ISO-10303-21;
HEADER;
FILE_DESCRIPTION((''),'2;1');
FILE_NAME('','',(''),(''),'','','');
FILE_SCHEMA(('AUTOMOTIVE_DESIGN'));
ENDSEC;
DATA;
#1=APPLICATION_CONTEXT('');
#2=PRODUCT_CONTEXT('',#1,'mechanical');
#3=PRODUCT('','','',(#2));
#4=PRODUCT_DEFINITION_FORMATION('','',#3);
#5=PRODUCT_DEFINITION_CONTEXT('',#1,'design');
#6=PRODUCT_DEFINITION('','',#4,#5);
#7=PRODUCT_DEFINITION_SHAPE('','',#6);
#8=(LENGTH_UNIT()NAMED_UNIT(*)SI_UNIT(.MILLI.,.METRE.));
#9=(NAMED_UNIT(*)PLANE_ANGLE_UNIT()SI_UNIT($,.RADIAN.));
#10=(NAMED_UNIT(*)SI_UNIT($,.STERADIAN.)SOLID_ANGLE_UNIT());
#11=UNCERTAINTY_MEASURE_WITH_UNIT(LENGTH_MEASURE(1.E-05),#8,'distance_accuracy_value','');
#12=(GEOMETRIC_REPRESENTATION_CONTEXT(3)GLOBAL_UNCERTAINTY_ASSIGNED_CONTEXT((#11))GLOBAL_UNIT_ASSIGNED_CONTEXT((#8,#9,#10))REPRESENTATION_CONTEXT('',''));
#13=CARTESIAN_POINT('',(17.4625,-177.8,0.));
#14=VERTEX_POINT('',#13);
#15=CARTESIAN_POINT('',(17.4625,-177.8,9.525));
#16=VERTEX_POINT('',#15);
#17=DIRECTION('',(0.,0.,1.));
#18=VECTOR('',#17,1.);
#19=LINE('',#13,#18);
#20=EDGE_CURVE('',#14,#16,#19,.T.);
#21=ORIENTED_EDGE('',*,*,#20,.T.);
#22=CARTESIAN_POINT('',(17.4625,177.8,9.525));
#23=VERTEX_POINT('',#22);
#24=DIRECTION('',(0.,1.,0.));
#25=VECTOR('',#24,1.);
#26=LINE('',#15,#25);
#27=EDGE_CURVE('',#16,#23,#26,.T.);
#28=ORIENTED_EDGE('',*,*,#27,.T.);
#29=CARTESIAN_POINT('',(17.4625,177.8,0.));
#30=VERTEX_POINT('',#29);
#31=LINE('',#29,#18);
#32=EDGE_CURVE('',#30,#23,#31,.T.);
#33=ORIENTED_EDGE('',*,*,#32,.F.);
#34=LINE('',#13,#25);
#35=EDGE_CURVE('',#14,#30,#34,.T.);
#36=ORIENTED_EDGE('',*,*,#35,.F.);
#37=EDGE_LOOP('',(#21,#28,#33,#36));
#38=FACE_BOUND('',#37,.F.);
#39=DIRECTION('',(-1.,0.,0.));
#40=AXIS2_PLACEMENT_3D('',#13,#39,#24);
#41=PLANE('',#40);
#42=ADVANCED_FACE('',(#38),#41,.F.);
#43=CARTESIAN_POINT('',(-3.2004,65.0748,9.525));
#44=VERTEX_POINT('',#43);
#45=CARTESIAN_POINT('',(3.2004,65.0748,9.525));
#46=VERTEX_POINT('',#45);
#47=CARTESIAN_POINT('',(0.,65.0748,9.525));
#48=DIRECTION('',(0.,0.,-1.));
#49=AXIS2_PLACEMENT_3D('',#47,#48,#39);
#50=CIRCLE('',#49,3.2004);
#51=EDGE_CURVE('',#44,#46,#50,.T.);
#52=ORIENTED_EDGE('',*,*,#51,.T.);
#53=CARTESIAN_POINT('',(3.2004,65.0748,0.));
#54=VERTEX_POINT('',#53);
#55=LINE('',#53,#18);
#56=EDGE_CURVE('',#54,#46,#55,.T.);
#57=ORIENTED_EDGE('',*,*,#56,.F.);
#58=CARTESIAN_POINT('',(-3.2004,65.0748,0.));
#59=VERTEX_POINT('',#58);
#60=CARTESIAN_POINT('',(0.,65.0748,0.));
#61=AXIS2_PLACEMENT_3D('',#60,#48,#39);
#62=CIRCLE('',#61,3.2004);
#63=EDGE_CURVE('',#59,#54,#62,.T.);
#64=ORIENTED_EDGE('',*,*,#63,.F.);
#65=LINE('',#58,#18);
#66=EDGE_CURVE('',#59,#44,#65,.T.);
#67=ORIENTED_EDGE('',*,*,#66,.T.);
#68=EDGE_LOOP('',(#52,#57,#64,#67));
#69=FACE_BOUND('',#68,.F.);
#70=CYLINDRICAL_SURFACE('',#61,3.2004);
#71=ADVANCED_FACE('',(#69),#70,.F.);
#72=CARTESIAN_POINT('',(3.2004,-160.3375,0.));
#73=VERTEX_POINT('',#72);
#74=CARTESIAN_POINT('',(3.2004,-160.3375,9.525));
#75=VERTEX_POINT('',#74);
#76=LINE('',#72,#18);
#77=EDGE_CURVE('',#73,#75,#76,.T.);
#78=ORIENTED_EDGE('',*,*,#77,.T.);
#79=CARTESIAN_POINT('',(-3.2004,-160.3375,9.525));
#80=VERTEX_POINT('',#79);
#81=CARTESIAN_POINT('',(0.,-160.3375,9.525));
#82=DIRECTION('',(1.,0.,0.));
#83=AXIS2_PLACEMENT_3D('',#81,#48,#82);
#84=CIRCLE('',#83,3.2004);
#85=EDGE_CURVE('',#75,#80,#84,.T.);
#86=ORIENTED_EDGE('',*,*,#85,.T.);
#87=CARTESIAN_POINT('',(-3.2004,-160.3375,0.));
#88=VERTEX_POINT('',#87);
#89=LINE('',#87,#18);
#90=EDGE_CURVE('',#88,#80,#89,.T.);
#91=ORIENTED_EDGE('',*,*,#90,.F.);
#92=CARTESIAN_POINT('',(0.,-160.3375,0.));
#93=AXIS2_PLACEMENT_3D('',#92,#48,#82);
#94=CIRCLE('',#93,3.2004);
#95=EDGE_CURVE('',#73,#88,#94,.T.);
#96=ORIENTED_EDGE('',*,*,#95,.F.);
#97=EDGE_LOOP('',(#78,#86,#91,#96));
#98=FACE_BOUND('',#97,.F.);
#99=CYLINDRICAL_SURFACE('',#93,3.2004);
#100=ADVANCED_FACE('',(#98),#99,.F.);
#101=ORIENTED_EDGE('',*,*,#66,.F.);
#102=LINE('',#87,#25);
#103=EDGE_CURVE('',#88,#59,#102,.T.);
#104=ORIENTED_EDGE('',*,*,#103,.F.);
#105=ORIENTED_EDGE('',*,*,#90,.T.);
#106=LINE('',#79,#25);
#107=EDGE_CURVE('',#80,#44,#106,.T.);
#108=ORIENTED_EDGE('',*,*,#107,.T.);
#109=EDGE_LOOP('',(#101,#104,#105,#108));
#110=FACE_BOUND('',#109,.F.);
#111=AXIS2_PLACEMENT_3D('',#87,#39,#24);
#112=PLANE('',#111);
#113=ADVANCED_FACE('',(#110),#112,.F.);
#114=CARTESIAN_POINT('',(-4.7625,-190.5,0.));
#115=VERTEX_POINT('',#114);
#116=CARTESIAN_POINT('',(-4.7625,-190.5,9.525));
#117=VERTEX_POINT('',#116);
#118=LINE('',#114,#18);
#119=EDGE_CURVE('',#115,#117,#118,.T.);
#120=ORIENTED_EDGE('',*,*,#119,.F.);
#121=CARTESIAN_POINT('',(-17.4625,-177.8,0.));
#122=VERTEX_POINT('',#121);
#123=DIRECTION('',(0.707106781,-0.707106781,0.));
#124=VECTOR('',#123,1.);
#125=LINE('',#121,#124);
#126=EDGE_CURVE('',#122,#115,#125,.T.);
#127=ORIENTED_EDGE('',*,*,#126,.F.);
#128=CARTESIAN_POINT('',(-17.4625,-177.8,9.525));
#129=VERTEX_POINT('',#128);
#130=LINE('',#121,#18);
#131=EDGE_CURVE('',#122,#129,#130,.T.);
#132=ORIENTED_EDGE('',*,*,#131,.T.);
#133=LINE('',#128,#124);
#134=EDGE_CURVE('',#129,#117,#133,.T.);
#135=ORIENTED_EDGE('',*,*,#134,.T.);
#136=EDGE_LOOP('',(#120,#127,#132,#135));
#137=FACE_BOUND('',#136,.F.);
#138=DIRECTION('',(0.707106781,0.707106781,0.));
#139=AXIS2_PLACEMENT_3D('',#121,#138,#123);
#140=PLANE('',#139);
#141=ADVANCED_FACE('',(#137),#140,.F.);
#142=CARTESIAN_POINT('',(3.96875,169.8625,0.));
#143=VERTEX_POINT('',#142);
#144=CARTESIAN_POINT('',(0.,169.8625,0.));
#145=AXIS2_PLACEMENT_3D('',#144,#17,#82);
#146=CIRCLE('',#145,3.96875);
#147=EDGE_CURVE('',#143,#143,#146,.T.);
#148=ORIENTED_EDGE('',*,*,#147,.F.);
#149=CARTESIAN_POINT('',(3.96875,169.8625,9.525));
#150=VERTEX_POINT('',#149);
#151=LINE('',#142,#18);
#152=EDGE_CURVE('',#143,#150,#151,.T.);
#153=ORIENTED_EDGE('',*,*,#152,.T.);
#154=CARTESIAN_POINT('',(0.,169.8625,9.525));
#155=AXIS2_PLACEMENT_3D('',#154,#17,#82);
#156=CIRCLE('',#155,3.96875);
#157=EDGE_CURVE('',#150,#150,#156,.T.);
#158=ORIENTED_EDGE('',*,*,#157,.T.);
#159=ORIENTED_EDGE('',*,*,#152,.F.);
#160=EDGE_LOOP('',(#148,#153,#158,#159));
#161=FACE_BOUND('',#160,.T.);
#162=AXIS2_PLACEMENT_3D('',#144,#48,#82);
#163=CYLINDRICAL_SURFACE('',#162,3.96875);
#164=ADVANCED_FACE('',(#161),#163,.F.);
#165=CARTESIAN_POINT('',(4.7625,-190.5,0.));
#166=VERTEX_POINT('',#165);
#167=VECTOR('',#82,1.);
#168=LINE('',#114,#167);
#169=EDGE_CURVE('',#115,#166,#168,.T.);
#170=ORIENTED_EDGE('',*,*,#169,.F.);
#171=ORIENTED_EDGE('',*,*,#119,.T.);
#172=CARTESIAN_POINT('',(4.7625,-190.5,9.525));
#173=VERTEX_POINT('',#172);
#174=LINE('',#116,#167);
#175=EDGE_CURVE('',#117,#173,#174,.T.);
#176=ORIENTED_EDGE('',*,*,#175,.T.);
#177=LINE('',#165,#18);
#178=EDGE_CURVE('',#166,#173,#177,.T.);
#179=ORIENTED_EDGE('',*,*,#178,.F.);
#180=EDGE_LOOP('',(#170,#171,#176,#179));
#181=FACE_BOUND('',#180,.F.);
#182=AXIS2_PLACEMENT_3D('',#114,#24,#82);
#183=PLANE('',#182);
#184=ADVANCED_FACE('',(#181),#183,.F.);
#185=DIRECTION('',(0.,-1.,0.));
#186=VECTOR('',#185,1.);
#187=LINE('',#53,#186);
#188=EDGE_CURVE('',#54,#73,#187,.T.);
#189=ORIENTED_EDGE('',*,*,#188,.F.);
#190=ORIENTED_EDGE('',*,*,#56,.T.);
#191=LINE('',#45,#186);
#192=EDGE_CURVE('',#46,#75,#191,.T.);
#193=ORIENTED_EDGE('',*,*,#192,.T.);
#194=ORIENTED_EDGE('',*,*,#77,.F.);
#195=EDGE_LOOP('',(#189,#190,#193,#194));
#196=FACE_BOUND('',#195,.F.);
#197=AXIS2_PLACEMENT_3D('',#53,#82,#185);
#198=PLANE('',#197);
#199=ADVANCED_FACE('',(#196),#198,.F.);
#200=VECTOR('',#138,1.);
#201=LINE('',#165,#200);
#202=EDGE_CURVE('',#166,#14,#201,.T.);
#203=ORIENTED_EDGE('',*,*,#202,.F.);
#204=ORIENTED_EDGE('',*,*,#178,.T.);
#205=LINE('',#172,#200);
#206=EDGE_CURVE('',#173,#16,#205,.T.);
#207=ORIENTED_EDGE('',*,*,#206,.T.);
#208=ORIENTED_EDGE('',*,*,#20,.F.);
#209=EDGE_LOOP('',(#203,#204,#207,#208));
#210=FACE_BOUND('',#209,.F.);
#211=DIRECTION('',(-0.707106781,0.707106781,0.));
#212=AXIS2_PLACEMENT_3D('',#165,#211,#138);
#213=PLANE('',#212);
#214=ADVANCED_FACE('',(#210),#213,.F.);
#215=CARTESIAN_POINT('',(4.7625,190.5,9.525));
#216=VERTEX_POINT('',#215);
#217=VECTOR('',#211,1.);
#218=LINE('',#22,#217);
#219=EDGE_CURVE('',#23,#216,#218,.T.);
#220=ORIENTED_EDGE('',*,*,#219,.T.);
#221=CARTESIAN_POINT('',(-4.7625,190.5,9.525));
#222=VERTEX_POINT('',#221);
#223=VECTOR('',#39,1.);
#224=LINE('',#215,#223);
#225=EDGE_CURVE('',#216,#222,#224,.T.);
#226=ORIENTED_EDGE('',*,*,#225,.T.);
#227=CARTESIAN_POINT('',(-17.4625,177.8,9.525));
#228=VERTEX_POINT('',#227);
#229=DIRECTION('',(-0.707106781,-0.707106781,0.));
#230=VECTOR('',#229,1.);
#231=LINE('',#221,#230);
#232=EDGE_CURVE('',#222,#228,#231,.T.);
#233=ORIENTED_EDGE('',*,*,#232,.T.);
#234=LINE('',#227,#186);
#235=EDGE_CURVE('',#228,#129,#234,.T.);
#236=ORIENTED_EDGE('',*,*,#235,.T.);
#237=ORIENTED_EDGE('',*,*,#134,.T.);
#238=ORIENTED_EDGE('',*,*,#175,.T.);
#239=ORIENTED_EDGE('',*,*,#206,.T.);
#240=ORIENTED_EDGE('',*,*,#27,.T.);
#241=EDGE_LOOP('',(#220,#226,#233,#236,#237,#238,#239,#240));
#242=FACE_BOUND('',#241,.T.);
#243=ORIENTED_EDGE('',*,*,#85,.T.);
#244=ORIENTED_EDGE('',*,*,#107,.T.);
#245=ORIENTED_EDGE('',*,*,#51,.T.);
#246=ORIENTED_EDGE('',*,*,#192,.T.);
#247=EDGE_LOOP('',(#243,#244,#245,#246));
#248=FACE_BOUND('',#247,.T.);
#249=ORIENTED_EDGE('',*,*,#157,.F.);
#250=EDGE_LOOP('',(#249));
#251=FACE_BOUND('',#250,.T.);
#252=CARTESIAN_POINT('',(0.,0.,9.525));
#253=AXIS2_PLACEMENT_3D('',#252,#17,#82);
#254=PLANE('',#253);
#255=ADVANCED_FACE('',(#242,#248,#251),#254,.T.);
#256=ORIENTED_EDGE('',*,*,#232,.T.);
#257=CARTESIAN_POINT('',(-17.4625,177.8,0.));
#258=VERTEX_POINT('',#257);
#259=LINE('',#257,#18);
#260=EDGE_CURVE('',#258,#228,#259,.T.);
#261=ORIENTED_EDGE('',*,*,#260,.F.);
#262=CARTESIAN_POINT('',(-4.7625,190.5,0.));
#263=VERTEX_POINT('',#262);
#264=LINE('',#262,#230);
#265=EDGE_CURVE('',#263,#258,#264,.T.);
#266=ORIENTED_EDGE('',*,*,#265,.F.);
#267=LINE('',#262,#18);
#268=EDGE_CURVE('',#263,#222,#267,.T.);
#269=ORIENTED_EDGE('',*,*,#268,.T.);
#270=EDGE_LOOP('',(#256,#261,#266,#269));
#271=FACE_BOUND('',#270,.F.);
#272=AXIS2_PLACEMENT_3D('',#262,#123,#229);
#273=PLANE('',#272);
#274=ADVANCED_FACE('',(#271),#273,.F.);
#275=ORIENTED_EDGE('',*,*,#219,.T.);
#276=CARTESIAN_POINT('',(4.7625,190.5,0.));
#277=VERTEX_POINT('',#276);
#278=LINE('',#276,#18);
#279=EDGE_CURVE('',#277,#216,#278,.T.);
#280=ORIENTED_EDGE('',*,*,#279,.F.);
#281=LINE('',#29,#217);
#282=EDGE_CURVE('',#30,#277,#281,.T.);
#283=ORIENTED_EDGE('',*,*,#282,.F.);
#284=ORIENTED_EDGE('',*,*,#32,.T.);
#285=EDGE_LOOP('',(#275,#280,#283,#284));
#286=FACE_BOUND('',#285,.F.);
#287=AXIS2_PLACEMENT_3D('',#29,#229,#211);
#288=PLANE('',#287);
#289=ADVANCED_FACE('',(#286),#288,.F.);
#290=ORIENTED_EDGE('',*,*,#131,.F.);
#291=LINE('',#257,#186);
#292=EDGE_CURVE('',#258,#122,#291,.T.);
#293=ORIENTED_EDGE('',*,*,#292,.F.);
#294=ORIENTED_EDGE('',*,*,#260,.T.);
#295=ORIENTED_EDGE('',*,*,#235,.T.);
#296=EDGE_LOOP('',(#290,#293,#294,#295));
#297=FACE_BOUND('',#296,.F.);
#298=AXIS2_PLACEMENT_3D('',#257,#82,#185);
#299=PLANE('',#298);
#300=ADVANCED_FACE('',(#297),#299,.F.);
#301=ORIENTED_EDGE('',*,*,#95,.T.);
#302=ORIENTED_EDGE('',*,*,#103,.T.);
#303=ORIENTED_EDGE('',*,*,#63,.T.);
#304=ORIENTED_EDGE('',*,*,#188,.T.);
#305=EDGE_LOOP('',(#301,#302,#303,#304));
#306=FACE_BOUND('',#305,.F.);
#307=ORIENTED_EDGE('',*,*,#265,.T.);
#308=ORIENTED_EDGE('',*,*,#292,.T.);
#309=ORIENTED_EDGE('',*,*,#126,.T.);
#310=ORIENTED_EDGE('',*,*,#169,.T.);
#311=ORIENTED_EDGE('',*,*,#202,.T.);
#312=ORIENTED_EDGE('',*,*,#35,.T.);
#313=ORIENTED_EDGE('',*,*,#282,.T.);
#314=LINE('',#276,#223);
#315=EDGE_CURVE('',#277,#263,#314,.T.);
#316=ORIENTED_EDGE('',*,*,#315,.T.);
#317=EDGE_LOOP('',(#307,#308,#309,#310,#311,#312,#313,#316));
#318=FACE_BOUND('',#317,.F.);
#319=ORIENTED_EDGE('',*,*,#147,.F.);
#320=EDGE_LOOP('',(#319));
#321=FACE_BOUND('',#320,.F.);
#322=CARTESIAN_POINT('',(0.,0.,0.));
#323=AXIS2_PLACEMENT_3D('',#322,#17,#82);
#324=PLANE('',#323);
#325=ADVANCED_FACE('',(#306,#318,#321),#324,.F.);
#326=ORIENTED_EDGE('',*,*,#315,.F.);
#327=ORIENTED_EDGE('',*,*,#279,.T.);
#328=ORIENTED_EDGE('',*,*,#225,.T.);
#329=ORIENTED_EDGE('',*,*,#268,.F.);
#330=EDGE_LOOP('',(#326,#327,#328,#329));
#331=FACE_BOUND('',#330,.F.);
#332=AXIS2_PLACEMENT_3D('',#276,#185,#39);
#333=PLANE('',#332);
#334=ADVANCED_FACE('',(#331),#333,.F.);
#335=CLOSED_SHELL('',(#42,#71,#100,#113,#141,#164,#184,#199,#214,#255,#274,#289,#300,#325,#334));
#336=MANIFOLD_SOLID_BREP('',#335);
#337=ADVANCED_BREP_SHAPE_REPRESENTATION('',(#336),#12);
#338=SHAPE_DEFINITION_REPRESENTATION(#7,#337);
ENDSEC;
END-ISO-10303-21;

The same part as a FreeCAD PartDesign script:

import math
import FreeCAD as App
import Part
import Sketcher
from FreeCAD import Vector
Q = App.Units.Quantity


def add_polygon(sketch, points):
    """Adds a closed chain of lines whose ends are joined by coincident constraints."""
    first, n = sketch.GeometryCount, len(points)
    for a, b in zip(points, points[1:] + points[:1]):
        sketch.addGeometry(Part.LineSegment(App.Vector(*a, 0), App.Vector(*b, 0)), False)
    for i in range(n):
        sketch.addConstraint(Sketcher.Constraint("Coincident", first + i, 2, first + (i + 1) % n, 1))

doc = App.newDocument("Part")
body = doc.addObject("PartDesign::Body", "Body")

# Sketch on XY plane
sketch1 = body.newObject("Sketcher::SketchObject", "Sketch")
sketch1.AttachmentSupport = (doc.getObject("XY_Plane"), [""])
sketch1.MapMode = "FlatFace"
add_polygon(sketch1, [(4.8, 190.5), (-4.8, 190.5), (-17.5, 177.8), (-17.5, -177.8), (-4.8, -190.5), (4.8, -190.5), (17.5, -177.8), (17.5, 177.8)])  # lines 0-7
sketch1.addGeometry(Part.LineSegment(Vector(3.2, 65.1, 0), Vector(3.2, -160.3, 0)), False)  # 8
sketch1.addGeometry(Part.ArcOfCircle(Part.Circle(Vector(0, -160.3, 0), Vector(0, 0, 1), 3.2), math.radians(180), math.radians(360)), False)  # 9
sketch1.addGeometry(Part.LineSegment(Vector(-3.2, -160.3, 0), Vector(-3.2, 65.1, 0)), False)  # 10
sketch1.addGeometry(Part.ArcOfCircle(Part.Circle(Vector(0, 65.1, 0), Vector(0, 0, 1), 3.2), math.radians(0), math.radians(180)), False)  # 11
sketch1.addGeometry(Part.Circle(Vector(0, 169.9, 0), Vector(0, 0, 1), 4), False)  # 12
sketch1.addConstraint([
    Sketcher.Constraint("Tangent", 8, 2, 9, 2),
    Sketcher.Constraint("Tangent", 9, 1, 10, 1),
    Sketcher.Constraint("Tangent", 10, 2, 11, 2),
    Sketcher.Constraint("Tangent", 11, 1, 8, 1),
    Sketcher.Constraint("Horizontal", 0),
    Sketcher.Constraint("Vertical", 2),
    Sketcher.Constraint("Horizontal", 4),
    Sketcher.Constraint("Vertical", 6),
    Sketcher.Constraint("Vertical", 8),
    Sketcher.Constraint("Vertical", 10),
    Sketcher.Constraint("Symmetric", 0, 2, 4, 2, -1, 1),
    Sketcher.Constraint("Symmetric", 1, 2, 5, 2, -1, 1),
    Sketcher.Constraint("PointOnObject", 9, 3, -2),
    Sketcher.Constraint("PointOnObject", 12, 3, -2),
    Sketcher.Constraint("Perpendicular", 1, 3),
    Sketcher.Constraint("Perpendicular", 5, 7),
    Sketcher.Constraint("Horizontal", 2, 2, 5, 2),
    Sketcher.Constraint("Horizontal", 1, 2, 6, 2),
    Sketcher.Constraint("Vertical", 0, 2, 3, 2),
    Sketcher.Constraint("DistanceY", 2, 2, 2, 1, Q("14 in")),
    Sketcher.Constraint("Diameter", 12, Q("0.3125 in")),
    Sketcher.Constraint("Radius", 9, Q("0.126 in")),
    Sketcher.Constraint("DistanceY", 9, 3, 12, 3, Q("13 in")),
    Sketcher.Constraint("DistanceY", -1, 1, 0, 2, Q("7.5 in")),
    Sketcher.Constraint("DistanceX", 0, 2, 0, 1, Q("0.375 in")),
    Sketcher.Constraint("DistanceY", 8, 2, 8, 1, Q("8.8745 in")),
    Sketcher.Constraint("DistanceY", 9, 3, -1, 1, Q("6.3125 in")),
])
pad1 = body.newObject("PartDesign::Pad", "Pad")
pad1.Profile = sketch1
pad1.Length = Q("0.375 in")

doc.recompute()
